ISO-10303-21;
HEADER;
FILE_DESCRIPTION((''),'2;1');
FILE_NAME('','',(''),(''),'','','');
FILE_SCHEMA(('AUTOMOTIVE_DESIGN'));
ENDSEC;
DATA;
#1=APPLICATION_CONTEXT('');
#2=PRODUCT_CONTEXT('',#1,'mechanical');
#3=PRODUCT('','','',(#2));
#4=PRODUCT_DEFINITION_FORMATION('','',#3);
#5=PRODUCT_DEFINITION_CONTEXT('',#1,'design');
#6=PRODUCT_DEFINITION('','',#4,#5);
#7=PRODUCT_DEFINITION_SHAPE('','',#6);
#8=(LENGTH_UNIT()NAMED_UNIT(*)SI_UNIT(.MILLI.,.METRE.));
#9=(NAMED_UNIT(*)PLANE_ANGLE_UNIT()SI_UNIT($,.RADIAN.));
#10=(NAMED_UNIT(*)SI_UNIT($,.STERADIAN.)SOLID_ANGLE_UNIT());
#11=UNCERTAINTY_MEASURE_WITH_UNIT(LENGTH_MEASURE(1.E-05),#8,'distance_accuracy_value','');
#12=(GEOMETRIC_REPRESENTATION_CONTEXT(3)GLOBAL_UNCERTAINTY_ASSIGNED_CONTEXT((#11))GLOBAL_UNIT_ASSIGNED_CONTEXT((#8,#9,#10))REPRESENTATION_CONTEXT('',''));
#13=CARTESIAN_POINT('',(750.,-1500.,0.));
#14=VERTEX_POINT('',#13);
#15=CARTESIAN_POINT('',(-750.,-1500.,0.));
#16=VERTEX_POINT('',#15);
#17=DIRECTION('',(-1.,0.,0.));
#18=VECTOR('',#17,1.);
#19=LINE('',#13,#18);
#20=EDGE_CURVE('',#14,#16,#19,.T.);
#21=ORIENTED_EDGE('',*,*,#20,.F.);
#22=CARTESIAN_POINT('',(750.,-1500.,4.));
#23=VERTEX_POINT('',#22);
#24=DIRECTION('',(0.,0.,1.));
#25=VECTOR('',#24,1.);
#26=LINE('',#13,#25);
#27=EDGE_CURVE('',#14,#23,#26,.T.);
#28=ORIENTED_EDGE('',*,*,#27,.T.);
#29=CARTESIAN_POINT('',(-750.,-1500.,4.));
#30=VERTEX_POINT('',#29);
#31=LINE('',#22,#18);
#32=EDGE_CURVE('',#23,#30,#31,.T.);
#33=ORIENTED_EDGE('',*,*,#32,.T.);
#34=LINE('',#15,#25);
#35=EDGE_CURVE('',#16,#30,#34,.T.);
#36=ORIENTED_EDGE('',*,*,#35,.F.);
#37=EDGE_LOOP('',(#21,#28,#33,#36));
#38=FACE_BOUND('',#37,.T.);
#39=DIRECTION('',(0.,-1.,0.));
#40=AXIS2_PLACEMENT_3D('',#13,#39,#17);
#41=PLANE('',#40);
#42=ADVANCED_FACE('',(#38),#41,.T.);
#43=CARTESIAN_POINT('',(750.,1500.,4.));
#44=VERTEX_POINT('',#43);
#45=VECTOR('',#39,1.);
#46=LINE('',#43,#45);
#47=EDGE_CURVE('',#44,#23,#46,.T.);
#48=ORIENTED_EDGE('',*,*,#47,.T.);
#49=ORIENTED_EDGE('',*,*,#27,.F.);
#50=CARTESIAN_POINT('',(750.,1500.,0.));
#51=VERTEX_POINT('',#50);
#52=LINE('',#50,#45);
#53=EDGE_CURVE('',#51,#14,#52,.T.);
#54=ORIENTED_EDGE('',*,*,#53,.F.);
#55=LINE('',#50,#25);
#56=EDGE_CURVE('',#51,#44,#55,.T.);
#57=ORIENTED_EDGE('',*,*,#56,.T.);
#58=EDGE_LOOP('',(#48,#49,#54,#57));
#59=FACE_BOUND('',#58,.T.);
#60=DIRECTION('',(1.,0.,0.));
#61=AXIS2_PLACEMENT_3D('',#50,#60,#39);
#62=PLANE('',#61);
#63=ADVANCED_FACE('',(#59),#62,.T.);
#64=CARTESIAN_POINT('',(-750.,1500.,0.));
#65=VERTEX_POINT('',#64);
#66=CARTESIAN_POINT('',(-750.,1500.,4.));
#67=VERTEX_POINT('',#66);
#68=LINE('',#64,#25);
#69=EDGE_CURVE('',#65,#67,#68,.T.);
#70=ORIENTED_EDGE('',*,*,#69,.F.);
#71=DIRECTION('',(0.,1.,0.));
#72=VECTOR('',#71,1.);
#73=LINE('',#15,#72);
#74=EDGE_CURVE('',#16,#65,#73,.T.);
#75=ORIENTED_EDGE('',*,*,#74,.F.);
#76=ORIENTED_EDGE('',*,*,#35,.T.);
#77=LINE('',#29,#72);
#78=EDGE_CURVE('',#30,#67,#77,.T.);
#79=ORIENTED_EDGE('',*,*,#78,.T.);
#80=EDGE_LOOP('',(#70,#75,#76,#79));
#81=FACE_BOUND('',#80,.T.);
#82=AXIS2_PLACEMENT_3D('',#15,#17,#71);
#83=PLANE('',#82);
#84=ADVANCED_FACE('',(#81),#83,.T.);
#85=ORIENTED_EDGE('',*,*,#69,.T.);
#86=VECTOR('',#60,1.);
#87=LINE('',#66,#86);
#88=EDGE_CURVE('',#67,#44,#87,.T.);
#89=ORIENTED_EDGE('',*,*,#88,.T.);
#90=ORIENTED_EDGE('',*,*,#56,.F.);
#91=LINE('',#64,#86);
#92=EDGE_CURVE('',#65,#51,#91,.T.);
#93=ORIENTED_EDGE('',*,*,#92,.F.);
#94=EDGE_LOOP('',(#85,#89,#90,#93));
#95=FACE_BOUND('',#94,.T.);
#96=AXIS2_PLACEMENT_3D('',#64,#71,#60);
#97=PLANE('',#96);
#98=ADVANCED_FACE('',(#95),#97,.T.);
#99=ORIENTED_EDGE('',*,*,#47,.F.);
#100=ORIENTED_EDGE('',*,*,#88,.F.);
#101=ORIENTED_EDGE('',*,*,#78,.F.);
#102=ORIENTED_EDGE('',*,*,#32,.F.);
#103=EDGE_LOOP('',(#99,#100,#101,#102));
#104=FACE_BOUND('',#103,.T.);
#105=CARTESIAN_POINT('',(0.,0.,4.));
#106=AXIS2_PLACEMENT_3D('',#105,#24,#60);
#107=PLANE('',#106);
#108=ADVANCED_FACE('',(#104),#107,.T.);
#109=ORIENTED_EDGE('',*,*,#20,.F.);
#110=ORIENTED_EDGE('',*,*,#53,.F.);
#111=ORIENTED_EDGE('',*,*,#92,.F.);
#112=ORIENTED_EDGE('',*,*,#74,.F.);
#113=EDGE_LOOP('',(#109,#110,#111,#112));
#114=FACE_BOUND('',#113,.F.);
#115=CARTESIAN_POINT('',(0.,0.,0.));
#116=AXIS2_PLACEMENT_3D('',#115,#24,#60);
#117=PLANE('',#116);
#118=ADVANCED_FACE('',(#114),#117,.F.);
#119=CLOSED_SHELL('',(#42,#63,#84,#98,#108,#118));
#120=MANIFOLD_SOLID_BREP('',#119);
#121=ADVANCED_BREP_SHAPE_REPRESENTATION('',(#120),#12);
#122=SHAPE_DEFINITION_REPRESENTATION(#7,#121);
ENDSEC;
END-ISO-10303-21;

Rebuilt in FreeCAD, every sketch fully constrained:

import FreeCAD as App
import Part
import Sketcher
from FreeCAD import Vector
Q = App.Units.Quantity

doc = App.newDocument("Part")
body = doc.addObject("PartDesign::Body", "Body")

# Sketch on XY plane
sketch1 = body.newObject("Sketcher::SketchObject", "Sketch")
sketch1.AttachmentSupport = (doc.getObject("XY_Plane"), [""])
sketch1.MapMode = "FlatFace"
sketch1.addGeometry(Part.LineSegment(Vector(-750, -1500, 0), Vector(750, -1500, 0)), False)
sketch1.addGeometry(Part.LineSegment(Vector(750, -1500, 0), Vector(750, 1500, 0)), False)
sketch1.addGeometry(Part.LineSegment(Vector(750, 1500, 0), Vector(-750, 1500, 0)), False)
sketch1.addGeometry(Part.LineSegment(Vector(-750, 1500, 0), Vector(-750, -1500, 0)), False)
sketch1.addConstraint(Sketcher.Constraint("Coincident", 0, 2, 1, 1))
sketch1.addConstraint(Sketcher.Constraint("Coincident", 1, 2, 2, 1))
sketch1.addConstraint(Sketcher.Constraint("Coincident", 2, 2, 3, 1))
sketch1.addConstraint(Sketcher.Constraint("Coincident", 3, 2, 0, 1))
sketch1.addConstraint(Sketcher.Constraint("Horizontal", 0))
sketch1.addConstraint(Sketcher.Constraint("Vertical", 1))
sketch1.addConstraint(Sketcher.Constraint("Horizontal", 2))
sketch1.addConstraint(Sketcher.Constraint("Vertical", 3))
sketch1.addConstraint(Sketcher.Constraint("Symmetric", 0, 2, 2, 2, -1, 1))
sketch1.addConstraint(Sketcher.Constraint("DistanceX", 0, 1, 0, 2, Q("1500 mm")))
sketch1.addConstraint(Sketcher.Constraint("DistanceY", 1, 1, 1, 2, Q("3000 mm")))
pad1 = body.newObject("PartDesign::Pad", "Pad")
pad1.Profile = sketch1
pad1.Length = 4

doc.recompute()
